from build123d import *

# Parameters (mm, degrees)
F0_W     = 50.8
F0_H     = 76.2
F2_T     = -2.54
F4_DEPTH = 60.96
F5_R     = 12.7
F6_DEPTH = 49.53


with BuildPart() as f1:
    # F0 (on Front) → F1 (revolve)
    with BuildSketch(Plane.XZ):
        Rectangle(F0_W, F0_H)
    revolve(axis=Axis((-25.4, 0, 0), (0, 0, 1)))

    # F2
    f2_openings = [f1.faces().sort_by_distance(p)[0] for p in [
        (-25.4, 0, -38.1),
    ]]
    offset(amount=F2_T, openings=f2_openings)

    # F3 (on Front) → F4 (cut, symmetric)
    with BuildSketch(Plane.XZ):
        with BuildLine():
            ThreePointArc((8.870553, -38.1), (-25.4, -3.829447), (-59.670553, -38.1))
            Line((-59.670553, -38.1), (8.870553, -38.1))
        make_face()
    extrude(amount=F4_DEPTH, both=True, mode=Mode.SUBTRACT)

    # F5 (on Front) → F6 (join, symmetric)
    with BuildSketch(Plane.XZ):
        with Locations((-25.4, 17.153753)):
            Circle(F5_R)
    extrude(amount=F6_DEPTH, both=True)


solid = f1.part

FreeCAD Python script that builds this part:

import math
import FreeCAD as App
import Part
import Sketcher

V = App.Vector
Q = App.Units.Quantity


def faces_at(feature, points):
    """Names of the faces that lie closest to the given points."""
    faces = feature.Shape.Faces
    near = lambda p: min(range(len(faces)), key=lambda i: faces[i].distToShape(Part.Vertex(*p))[0])
    return sorted({f"Face{near(p) + 1}" for p in points})


def add_polygon(sketch, points):
    """Adds a closed chain of lines whose ends are joined by coincident constraints."""
    first, n = sketch.GeometryCount, len(points)
    for a, b in zip(points, points[1:] + points[:1]):
        sketch.addGeometry(Part.LineSegment(App.Vector(*a, 0), App.Vector(*b, 0)), False)
    for i in range(n):
        sketch.addConstraint(Sketcher.Constraint("Coincident", first + i, 2, first + (i + 1) % n, 1))

doc = App.newDocument("Part")
body = doc.addObject("PartDesign::Body", "Body")

sketch1 = doc.addObject("Sketcher::SketchObject", "Sketch")
body.addObject(sketch1)
sketch1.AttachmentSupport = (doc.XZ_Plane, [""])
sketch1.MapMode = "FlatFace"
add_polygon(sketch1, [(-25, 38), (-25, -38), (25, -38), (25, 38)])
sketch1.addGeometry(Part.LineSegment(V(-25, -38, 0), V(-25, 38, 0)), True)
sketch1.addConstraint([
    Sketcher.Constraint("Vertical", 0),
    Sketcher.Constraint("Horizontal", 1),
    Sketcher.Constraint("Vertical", 2),
    Sketcher.Constraint("Horizontal", 3),
    Sketcher.Constraint("Vertical", 4),
    Sketcher.Constraint("Coincident", 4, 1, 0, 2),
    Sketcher.Constraint("Symmetric", 0, 2, 2, 2, -1, 1),
    Sketcher.Constraint("Horizontal", 2, 2, 4, 2),
    Sketcher.Constraint("DistanceX", 1, 1, 1, 2, Q("2 in")),
    Sketcher.Constraint("DistanceY", 0, 2, 0, 1, Q("3 in")),
])
revolution = doc.addObject("PartDesign::Revolution", "Revolution")
body.addObject(revolution)
revolution.Profile = sketch1
revolution.ReferenceAxis = (sketch1, ["Axis0"])
revolution.Angle = 360
doc.recompute()

thickness = doc.addObject("PartDesign::Thickness", "Thickness")
body.addObject(thickness)
thickness.Base = (revolution, faces_at(revolution, [(-25.4, 0, -38.1)]))
thickness.Value = Q("0.1 in")
thickness.Reversed = True
thickness.Join = "Arc"

sketch2 = doc.addObject("Sketcher::SketchObject", "Sketch001")
body.addObject(sketch2)
sketch2.AttachmentSupport = (doc.XZ_Plane, [""])
sketch2.MapMode = "FlatFace"
sketch2.addGeometry([
    Part.ArcOfCircle(Part.Circle(V(-25, -38, 0), V(0, 0, 1), 34), math.radians(0), math.radians(180)),
    Part.LineSegment(V(-60, -38, 0), V(9, -38, 0)),
], False)
sketch2.addConstraint([
    Sketcher.Constraint("Coincident", 0, 1, 1, 2),
    Sketcher.Constraint("Coincident", 1, 1, 0, 2),
    Sketcher.Constraint("Horizontal", 1),
    Sketcher.Constraint("DistanceX", 0, 3, -1, 1, Q("1 in")),
    Sketcher.Constraint("DistanceY", 0, 3, -1, 1, Q("1.5 in")),
    Sketcher.Constraint("DistanceY", 0, 1, -1, 1, Q("1.5 in")),
    Sketcher.Constraint("Radius", 0, Q("34.270553 mm")),
])
pocket1 = doc.addObject("PartDesign::Pocket", "Pocket")
body.addObject(pocket1)
pocket1.Profile = sketch2
pocket1.Length = Q("4.8 in")
pocket1.Midplane = True

sketch3 = doc.addObject("Sketcher::SketchObject", "Sketch002")
body.addObject(sketch3)
sketch3.AttachmentSupport = (doc.XZ_Plane, [""])
sketch3.MapMode = "FlatFace"
sketch3.addGeometry(Part.Circle(V(-25, 17, 0), V(0, 0, 1), 13), False)
sketch3.addConstraint([
    Sketcher.Constraint("Diameter", 0, Q("1 in")),
    Sketcher.Constraint("DistanceX", 0, 3, -1, 1, Q("1 in")),
    Sketcher.Constraint("DistanceY", -1, 1, 0, 3, Q("17.153753 mm")),
])
pad1 = doc.addObject("PartDesign::Pad", "Pad")
body.addObject(pad1)
pad1.Profile = sketch3
pad1.Length = Q("3.9 in")
pad1.Midplane = True

doc.recompute()
